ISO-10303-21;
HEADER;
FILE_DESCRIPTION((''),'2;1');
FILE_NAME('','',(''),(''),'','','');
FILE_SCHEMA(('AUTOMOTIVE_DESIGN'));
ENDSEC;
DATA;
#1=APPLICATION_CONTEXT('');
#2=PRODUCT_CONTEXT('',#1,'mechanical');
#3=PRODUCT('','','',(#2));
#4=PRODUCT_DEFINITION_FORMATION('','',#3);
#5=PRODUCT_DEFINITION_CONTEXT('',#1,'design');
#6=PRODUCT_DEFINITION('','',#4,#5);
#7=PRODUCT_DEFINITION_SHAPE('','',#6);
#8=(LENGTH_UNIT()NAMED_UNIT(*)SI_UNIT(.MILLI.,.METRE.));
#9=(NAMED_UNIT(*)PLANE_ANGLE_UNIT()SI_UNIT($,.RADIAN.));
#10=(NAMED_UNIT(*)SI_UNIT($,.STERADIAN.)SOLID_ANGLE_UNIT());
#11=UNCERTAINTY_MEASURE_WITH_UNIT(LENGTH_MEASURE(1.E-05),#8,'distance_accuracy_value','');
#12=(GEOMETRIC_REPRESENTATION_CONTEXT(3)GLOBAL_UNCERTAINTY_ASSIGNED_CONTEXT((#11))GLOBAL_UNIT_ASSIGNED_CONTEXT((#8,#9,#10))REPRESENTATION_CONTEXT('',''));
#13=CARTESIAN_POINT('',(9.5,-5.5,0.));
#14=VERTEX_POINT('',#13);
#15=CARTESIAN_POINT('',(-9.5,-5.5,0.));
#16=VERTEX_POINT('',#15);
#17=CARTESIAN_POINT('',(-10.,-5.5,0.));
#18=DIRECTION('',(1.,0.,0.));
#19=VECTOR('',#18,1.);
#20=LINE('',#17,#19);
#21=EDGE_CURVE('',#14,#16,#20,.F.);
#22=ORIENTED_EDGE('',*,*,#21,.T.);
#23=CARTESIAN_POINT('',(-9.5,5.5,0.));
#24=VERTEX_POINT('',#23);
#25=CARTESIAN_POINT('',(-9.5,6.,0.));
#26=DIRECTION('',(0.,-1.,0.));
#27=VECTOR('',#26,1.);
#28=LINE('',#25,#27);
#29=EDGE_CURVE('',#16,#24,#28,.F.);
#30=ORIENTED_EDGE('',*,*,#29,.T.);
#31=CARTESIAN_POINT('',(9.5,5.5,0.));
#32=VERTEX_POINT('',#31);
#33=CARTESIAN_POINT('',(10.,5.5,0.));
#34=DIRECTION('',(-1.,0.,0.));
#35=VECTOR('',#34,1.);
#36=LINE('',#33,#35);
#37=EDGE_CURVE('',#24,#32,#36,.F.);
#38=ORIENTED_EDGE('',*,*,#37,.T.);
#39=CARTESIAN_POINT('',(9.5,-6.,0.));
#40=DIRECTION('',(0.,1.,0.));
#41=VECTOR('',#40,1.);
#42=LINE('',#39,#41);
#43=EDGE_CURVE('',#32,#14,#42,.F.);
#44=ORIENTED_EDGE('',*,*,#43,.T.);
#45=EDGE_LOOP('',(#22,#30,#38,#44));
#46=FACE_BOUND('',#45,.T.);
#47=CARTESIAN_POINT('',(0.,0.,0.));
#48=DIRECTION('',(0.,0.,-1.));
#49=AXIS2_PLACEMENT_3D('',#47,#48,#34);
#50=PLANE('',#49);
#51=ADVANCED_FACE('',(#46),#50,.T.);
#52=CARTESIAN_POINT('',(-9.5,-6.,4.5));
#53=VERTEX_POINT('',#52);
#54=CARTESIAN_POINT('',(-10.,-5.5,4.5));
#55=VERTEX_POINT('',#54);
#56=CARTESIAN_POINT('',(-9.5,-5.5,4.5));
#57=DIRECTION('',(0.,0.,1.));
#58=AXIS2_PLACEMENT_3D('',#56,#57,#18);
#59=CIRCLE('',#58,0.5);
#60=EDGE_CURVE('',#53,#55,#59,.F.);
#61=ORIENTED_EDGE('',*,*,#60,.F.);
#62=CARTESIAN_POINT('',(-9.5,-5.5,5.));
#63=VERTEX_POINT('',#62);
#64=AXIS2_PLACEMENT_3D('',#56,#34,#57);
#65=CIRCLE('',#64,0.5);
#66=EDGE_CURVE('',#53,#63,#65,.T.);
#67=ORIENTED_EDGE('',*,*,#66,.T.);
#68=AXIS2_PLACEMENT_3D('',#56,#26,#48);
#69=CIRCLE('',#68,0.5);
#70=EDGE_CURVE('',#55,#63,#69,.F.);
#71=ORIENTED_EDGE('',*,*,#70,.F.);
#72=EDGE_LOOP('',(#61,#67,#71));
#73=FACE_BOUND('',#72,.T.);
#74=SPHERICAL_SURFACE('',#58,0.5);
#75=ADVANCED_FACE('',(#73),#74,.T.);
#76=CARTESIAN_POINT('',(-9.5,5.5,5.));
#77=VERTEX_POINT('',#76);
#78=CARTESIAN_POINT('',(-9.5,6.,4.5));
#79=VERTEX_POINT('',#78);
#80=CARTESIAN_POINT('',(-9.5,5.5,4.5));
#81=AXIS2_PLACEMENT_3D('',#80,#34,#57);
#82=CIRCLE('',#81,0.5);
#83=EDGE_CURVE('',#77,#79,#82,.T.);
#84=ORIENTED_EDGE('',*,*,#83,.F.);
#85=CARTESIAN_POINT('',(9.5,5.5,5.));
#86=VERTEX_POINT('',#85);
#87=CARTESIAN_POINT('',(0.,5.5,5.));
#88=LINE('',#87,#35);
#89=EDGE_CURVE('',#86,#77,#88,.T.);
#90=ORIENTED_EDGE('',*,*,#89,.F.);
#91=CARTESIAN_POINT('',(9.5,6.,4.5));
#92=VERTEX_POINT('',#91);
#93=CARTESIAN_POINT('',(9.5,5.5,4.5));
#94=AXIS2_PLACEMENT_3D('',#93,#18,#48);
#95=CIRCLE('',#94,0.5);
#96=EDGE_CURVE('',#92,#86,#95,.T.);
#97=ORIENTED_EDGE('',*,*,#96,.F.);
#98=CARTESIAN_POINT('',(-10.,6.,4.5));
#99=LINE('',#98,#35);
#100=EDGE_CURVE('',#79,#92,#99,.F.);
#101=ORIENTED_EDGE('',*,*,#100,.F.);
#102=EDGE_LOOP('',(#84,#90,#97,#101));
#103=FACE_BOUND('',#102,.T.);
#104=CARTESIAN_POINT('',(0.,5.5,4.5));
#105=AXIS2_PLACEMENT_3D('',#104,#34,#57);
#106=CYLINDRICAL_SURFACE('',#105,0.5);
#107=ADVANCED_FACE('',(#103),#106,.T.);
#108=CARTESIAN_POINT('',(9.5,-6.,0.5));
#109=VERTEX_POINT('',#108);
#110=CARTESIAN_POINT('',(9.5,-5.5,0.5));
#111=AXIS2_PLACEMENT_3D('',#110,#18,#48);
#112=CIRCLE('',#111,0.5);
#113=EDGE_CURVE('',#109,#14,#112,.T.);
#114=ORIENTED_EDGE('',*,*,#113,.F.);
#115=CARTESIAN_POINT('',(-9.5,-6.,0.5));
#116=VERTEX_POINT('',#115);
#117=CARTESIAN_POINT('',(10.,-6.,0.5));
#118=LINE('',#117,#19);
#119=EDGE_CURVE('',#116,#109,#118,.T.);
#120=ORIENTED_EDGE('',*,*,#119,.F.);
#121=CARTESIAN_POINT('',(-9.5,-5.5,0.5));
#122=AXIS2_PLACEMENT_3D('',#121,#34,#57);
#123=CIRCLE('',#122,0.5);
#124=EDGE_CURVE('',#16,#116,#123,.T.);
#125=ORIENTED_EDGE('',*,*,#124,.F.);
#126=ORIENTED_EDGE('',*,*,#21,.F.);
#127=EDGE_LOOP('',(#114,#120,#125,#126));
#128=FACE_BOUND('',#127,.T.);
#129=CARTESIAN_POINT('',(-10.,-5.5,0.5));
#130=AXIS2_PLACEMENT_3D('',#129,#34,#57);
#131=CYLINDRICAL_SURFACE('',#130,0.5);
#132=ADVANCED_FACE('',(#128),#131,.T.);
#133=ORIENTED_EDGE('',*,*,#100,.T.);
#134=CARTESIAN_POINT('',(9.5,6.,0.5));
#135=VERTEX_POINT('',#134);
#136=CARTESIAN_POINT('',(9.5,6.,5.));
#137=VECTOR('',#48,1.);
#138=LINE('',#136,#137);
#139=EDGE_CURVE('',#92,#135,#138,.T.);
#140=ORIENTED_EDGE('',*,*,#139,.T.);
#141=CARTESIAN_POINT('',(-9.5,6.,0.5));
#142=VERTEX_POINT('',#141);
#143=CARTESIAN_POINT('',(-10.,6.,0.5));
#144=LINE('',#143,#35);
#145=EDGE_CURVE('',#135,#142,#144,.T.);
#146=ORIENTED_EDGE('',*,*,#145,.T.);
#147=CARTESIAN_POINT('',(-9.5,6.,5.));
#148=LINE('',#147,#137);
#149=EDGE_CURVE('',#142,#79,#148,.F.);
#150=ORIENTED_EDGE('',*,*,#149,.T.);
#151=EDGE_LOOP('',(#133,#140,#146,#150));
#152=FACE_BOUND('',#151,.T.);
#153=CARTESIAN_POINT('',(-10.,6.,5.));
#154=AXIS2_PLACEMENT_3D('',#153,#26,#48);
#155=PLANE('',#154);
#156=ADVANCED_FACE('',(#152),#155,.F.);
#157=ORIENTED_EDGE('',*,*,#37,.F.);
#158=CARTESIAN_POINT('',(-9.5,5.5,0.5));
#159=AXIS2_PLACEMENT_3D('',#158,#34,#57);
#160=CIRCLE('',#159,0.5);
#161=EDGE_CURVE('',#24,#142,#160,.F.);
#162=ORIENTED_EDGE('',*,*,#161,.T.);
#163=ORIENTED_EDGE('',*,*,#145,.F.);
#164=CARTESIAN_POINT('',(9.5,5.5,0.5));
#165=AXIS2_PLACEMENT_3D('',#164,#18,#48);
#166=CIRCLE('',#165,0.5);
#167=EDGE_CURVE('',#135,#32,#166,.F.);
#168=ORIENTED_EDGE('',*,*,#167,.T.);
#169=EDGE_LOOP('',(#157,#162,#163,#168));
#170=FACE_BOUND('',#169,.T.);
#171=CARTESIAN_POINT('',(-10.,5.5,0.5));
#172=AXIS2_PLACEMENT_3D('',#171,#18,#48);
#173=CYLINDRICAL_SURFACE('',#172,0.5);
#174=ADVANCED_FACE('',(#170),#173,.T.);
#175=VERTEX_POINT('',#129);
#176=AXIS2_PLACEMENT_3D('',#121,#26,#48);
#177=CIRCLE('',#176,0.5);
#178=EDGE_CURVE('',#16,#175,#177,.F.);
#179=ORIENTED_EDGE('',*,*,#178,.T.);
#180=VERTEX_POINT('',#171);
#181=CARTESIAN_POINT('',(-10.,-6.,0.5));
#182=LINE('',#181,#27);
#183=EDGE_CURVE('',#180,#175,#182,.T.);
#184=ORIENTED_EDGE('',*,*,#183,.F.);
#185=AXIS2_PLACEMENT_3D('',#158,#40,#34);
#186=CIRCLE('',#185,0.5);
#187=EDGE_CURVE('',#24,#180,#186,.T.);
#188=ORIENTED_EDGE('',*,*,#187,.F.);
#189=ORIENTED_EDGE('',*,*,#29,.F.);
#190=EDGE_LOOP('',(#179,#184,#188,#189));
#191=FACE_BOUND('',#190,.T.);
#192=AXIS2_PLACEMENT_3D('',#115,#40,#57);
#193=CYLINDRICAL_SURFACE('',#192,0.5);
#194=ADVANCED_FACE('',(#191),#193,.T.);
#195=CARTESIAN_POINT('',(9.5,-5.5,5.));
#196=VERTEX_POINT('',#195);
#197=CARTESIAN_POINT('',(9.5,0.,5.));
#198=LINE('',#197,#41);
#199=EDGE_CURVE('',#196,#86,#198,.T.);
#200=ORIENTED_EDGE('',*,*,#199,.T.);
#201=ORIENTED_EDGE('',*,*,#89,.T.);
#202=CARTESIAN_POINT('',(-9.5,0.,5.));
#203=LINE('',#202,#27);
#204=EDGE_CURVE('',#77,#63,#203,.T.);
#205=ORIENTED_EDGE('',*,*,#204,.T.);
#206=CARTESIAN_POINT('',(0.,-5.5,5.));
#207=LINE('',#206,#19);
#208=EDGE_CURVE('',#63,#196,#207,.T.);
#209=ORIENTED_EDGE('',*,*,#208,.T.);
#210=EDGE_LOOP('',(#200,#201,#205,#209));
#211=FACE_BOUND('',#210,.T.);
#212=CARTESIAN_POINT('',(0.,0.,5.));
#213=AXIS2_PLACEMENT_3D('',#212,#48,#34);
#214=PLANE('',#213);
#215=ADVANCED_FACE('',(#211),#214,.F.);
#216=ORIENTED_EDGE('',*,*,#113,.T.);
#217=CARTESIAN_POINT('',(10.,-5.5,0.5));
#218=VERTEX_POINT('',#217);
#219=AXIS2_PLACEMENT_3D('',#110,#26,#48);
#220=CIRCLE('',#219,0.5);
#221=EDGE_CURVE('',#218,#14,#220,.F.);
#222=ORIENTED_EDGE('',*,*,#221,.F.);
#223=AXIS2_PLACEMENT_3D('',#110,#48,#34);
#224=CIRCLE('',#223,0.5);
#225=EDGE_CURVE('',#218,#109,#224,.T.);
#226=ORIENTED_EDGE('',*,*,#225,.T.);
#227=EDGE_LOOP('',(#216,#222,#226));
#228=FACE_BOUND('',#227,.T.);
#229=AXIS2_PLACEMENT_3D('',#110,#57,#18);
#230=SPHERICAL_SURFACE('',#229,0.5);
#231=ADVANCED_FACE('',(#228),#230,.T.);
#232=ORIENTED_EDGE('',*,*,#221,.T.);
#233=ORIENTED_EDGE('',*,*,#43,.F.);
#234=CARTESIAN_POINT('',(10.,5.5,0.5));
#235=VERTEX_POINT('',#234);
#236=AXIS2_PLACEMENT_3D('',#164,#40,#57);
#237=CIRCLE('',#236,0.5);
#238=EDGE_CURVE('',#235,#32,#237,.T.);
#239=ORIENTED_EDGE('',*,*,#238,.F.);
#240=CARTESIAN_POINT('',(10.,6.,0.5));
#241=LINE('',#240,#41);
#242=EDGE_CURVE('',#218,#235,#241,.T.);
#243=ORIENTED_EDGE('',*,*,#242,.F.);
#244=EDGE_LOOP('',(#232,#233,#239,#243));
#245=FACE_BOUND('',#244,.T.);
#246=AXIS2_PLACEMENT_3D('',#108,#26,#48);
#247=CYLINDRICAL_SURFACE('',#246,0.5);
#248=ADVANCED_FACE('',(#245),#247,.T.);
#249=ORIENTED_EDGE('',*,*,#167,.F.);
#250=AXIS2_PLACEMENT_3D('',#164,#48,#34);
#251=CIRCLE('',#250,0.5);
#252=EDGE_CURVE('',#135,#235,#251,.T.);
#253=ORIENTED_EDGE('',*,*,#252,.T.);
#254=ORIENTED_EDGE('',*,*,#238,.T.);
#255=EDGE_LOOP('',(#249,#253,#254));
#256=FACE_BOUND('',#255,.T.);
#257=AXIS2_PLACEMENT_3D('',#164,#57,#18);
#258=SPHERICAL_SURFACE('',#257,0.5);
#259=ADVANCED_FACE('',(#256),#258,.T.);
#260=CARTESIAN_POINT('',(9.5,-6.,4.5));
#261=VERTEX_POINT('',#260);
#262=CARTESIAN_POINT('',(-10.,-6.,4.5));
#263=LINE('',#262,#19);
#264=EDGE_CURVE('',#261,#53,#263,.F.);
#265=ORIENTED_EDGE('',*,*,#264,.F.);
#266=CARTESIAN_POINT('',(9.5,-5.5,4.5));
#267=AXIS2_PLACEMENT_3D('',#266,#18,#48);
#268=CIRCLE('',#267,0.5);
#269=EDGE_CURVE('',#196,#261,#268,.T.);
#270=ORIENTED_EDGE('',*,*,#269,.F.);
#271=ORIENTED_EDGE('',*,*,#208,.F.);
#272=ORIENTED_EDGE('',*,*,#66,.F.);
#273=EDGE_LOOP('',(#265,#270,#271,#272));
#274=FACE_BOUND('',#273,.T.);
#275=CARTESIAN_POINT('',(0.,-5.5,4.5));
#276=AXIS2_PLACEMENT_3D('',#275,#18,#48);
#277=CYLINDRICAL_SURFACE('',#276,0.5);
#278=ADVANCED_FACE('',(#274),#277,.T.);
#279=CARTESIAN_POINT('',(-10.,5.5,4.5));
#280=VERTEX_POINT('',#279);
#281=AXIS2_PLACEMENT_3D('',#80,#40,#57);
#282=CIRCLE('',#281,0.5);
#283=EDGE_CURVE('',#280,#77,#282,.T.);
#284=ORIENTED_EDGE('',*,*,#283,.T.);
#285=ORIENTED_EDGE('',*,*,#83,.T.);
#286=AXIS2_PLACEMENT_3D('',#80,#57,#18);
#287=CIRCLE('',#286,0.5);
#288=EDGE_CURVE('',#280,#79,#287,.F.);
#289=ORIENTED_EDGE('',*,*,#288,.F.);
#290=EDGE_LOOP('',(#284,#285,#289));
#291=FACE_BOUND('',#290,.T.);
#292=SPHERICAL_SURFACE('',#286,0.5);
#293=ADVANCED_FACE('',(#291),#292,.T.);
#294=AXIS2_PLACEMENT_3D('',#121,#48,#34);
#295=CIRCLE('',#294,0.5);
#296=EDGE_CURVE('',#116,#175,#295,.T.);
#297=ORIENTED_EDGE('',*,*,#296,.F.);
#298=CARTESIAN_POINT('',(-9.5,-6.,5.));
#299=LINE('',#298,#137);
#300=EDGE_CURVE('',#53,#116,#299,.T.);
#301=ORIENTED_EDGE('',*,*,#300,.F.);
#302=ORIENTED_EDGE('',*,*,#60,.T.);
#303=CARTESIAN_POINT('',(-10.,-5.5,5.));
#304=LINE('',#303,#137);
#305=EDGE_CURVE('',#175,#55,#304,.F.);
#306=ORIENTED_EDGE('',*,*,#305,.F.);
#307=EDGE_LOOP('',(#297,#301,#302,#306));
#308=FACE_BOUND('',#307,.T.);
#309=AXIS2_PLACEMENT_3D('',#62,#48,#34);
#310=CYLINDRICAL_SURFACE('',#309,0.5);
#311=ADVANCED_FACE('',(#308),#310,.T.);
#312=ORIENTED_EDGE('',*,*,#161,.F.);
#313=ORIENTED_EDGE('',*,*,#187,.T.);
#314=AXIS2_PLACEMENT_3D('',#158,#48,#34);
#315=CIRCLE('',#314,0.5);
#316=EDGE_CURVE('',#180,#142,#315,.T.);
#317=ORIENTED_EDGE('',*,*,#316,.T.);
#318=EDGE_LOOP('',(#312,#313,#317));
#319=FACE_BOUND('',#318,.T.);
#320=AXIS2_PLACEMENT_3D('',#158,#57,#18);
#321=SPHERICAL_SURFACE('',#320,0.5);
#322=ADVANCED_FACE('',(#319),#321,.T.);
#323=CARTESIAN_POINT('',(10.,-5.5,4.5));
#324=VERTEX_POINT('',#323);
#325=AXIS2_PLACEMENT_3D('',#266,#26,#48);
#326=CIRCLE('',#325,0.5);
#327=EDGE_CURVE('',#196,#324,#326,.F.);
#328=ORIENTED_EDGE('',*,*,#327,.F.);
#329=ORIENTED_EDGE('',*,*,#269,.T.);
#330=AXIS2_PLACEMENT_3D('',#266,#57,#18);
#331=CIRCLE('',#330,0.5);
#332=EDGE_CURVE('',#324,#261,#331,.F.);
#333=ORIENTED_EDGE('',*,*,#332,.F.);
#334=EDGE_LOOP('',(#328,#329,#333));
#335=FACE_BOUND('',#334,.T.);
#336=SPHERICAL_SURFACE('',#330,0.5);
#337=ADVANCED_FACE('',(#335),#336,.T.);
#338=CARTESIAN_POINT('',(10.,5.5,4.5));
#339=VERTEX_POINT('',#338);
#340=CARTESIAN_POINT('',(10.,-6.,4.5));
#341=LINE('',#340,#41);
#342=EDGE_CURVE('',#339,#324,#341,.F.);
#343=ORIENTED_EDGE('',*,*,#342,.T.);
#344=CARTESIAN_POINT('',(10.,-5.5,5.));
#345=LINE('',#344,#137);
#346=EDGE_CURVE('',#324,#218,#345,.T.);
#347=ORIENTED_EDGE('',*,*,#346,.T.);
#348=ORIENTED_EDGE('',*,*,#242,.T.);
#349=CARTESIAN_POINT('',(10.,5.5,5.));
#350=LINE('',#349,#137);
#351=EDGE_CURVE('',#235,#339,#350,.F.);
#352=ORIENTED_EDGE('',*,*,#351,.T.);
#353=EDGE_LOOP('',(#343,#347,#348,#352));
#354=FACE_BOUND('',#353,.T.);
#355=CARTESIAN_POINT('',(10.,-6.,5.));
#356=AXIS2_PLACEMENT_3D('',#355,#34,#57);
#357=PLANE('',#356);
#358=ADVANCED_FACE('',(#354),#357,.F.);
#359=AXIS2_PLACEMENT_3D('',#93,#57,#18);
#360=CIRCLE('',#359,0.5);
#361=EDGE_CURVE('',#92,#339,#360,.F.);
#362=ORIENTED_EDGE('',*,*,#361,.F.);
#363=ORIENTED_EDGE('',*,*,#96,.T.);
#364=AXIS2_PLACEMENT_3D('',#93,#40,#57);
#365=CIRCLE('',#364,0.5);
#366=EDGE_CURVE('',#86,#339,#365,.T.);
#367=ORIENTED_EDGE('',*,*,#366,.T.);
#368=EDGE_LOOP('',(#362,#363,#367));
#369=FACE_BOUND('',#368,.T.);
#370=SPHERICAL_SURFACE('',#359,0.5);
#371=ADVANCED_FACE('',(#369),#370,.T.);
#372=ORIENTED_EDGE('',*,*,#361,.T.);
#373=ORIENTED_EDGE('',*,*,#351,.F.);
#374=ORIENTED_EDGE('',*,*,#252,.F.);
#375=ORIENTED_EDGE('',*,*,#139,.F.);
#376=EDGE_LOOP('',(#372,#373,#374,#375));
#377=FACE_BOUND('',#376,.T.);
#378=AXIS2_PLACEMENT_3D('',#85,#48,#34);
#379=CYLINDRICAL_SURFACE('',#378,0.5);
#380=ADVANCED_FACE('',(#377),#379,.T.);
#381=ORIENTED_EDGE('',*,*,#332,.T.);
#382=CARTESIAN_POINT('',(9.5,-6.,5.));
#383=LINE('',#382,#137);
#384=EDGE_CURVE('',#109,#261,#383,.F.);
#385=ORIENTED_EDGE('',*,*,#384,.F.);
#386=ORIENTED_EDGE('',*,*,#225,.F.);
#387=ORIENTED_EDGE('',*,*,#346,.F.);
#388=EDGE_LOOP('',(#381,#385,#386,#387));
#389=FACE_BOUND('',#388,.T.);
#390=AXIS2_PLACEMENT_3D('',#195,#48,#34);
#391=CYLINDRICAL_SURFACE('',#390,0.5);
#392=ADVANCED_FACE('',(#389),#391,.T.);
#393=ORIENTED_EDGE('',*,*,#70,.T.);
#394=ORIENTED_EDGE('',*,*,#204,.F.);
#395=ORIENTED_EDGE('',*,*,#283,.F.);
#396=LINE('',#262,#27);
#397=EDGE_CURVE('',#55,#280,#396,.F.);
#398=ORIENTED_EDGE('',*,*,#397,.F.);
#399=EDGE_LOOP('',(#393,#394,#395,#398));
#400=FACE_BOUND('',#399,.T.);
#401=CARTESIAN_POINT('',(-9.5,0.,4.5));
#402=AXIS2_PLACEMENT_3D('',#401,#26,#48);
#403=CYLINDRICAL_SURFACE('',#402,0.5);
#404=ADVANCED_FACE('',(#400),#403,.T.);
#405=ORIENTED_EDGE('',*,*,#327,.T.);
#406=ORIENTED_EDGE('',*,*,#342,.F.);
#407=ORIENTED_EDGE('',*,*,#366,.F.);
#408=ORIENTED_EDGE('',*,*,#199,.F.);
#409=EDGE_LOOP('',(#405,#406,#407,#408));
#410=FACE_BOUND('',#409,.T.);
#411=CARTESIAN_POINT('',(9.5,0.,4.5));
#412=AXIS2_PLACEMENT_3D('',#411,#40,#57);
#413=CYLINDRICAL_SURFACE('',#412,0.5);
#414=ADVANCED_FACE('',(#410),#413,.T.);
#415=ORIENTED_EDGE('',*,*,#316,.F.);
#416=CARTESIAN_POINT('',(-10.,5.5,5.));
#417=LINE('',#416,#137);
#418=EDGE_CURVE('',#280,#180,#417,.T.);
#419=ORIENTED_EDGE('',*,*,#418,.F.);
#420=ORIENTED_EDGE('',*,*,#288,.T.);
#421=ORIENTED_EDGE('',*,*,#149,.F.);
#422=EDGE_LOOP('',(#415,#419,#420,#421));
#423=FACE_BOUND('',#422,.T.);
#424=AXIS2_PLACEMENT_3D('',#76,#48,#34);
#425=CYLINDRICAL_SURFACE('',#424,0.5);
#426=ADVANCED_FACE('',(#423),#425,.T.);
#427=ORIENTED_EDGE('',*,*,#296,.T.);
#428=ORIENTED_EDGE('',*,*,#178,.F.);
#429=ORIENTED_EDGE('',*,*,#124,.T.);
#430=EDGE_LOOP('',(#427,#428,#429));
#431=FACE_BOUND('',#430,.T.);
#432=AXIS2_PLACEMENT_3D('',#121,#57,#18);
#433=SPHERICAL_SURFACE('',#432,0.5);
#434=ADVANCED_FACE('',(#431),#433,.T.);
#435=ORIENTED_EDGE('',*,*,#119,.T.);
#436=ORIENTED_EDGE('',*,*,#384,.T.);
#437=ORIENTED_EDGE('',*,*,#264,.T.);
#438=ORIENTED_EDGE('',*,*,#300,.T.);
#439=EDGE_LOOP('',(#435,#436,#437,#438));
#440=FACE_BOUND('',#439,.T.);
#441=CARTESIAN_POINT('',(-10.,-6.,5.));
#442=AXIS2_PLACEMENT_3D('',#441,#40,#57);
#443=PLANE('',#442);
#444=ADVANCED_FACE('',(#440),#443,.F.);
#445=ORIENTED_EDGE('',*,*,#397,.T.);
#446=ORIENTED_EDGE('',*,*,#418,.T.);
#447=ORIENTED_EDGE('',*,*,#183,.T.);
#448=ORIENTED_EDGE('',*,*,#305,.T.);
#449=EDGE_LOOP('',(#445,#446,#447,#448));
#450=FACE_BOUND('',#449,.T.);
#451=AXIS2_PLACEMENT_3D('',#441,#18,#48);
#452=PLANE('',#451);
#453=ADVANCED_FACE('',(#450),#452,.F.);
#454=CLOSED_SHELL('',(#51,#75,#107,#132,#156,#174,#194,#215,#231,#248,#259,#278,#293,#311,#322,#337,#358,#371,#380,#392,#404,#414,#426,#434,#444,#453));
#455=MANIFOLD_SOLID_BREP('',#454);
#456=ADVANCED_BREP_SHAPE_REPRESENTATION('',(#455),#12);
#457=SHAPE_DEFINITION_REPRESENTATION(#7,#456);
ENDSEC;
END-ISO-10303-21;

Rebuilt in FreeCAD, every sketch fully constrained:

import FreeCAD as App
import Part
import Sketcher

V = App.Vector

doc = App.newDocument("Part")
body = doc.addObject("PartDesign::Body", "Body")

# Sketch on XY plane
sketch1 = doc.addObject("Sketcher::SketchObject", "Sketch")
body.addObject(sketch1)
sketch1.AttachmentSupport = (doc.XY_Plane, [""])
sketch1.MapMode = "FlatFace"
sketch1.addGeometry(Part.LineSegment(V(-10, 6, 0), V(-10, -6, 0)), False)
sketch1.addGeometry(Part.LineSegment(V(-10, -6, 0), V(10, -6, 0)), False)
sketch1.addGeometry(Part.LineSegment(V(10, -6, 0), V(10, 6, 0)), False)
sketch1.addGeometry(Part.LineSegment(V(10, 6, 0), V(-10, 6, 0)), False)
sketch1.addConstraint(Sketcher.Constraint("Coincident", 0, 2, 1, 1))
sketch1.addConstraint(Sketcher.Constraint("Coincident", 1, 2, 2, 1))
sketch1.addConstraint(Sketcher.Constraint("Coincident", 2, 2, 3, 1))
sketch1.addConstraint(Sketcher.Constraint("Coincident", 3, 2, 0, 1))
sketch1.addConstraint(Sketcher.Constraint("Vertical", 0))
sketch1.addConstraint(Sketcher.Constraint("Horizontal", 1))
sketch1.addConstraint(Sketcher.Constraint("Vertical", 2))
sketch1.addConstraint(Sketcher.Constraint("Horizontal", 3))
sketch1.addConstraint(Sketcher.Constraint("Symmetric", 0, 2, 2, 2, -1, 1))
sketch1.addConstraint(Sketcher.Constraint("DistanceX", 1, 1, 1, 2, 20.0))
sketch1.addConstraint(Sketcher.Constraint("DistanceY", 0, 2, 0, 1, 12.0))
pad1 = doc.addObject("PartDesign::Pad", "Pad")
body.addObject(pad1)
pad1.Profile = sketch1
pad1.Length = 5
doc.recompute()

fillet = doc.addObject("PartDesign::Fillet", "Fillet")
body.addObject(fillet)
fillet.Base = (pad1, ["Edge1"])
fillet.UseAllEdges = True
fillet.Radius = 0.5

doc.recompute()
